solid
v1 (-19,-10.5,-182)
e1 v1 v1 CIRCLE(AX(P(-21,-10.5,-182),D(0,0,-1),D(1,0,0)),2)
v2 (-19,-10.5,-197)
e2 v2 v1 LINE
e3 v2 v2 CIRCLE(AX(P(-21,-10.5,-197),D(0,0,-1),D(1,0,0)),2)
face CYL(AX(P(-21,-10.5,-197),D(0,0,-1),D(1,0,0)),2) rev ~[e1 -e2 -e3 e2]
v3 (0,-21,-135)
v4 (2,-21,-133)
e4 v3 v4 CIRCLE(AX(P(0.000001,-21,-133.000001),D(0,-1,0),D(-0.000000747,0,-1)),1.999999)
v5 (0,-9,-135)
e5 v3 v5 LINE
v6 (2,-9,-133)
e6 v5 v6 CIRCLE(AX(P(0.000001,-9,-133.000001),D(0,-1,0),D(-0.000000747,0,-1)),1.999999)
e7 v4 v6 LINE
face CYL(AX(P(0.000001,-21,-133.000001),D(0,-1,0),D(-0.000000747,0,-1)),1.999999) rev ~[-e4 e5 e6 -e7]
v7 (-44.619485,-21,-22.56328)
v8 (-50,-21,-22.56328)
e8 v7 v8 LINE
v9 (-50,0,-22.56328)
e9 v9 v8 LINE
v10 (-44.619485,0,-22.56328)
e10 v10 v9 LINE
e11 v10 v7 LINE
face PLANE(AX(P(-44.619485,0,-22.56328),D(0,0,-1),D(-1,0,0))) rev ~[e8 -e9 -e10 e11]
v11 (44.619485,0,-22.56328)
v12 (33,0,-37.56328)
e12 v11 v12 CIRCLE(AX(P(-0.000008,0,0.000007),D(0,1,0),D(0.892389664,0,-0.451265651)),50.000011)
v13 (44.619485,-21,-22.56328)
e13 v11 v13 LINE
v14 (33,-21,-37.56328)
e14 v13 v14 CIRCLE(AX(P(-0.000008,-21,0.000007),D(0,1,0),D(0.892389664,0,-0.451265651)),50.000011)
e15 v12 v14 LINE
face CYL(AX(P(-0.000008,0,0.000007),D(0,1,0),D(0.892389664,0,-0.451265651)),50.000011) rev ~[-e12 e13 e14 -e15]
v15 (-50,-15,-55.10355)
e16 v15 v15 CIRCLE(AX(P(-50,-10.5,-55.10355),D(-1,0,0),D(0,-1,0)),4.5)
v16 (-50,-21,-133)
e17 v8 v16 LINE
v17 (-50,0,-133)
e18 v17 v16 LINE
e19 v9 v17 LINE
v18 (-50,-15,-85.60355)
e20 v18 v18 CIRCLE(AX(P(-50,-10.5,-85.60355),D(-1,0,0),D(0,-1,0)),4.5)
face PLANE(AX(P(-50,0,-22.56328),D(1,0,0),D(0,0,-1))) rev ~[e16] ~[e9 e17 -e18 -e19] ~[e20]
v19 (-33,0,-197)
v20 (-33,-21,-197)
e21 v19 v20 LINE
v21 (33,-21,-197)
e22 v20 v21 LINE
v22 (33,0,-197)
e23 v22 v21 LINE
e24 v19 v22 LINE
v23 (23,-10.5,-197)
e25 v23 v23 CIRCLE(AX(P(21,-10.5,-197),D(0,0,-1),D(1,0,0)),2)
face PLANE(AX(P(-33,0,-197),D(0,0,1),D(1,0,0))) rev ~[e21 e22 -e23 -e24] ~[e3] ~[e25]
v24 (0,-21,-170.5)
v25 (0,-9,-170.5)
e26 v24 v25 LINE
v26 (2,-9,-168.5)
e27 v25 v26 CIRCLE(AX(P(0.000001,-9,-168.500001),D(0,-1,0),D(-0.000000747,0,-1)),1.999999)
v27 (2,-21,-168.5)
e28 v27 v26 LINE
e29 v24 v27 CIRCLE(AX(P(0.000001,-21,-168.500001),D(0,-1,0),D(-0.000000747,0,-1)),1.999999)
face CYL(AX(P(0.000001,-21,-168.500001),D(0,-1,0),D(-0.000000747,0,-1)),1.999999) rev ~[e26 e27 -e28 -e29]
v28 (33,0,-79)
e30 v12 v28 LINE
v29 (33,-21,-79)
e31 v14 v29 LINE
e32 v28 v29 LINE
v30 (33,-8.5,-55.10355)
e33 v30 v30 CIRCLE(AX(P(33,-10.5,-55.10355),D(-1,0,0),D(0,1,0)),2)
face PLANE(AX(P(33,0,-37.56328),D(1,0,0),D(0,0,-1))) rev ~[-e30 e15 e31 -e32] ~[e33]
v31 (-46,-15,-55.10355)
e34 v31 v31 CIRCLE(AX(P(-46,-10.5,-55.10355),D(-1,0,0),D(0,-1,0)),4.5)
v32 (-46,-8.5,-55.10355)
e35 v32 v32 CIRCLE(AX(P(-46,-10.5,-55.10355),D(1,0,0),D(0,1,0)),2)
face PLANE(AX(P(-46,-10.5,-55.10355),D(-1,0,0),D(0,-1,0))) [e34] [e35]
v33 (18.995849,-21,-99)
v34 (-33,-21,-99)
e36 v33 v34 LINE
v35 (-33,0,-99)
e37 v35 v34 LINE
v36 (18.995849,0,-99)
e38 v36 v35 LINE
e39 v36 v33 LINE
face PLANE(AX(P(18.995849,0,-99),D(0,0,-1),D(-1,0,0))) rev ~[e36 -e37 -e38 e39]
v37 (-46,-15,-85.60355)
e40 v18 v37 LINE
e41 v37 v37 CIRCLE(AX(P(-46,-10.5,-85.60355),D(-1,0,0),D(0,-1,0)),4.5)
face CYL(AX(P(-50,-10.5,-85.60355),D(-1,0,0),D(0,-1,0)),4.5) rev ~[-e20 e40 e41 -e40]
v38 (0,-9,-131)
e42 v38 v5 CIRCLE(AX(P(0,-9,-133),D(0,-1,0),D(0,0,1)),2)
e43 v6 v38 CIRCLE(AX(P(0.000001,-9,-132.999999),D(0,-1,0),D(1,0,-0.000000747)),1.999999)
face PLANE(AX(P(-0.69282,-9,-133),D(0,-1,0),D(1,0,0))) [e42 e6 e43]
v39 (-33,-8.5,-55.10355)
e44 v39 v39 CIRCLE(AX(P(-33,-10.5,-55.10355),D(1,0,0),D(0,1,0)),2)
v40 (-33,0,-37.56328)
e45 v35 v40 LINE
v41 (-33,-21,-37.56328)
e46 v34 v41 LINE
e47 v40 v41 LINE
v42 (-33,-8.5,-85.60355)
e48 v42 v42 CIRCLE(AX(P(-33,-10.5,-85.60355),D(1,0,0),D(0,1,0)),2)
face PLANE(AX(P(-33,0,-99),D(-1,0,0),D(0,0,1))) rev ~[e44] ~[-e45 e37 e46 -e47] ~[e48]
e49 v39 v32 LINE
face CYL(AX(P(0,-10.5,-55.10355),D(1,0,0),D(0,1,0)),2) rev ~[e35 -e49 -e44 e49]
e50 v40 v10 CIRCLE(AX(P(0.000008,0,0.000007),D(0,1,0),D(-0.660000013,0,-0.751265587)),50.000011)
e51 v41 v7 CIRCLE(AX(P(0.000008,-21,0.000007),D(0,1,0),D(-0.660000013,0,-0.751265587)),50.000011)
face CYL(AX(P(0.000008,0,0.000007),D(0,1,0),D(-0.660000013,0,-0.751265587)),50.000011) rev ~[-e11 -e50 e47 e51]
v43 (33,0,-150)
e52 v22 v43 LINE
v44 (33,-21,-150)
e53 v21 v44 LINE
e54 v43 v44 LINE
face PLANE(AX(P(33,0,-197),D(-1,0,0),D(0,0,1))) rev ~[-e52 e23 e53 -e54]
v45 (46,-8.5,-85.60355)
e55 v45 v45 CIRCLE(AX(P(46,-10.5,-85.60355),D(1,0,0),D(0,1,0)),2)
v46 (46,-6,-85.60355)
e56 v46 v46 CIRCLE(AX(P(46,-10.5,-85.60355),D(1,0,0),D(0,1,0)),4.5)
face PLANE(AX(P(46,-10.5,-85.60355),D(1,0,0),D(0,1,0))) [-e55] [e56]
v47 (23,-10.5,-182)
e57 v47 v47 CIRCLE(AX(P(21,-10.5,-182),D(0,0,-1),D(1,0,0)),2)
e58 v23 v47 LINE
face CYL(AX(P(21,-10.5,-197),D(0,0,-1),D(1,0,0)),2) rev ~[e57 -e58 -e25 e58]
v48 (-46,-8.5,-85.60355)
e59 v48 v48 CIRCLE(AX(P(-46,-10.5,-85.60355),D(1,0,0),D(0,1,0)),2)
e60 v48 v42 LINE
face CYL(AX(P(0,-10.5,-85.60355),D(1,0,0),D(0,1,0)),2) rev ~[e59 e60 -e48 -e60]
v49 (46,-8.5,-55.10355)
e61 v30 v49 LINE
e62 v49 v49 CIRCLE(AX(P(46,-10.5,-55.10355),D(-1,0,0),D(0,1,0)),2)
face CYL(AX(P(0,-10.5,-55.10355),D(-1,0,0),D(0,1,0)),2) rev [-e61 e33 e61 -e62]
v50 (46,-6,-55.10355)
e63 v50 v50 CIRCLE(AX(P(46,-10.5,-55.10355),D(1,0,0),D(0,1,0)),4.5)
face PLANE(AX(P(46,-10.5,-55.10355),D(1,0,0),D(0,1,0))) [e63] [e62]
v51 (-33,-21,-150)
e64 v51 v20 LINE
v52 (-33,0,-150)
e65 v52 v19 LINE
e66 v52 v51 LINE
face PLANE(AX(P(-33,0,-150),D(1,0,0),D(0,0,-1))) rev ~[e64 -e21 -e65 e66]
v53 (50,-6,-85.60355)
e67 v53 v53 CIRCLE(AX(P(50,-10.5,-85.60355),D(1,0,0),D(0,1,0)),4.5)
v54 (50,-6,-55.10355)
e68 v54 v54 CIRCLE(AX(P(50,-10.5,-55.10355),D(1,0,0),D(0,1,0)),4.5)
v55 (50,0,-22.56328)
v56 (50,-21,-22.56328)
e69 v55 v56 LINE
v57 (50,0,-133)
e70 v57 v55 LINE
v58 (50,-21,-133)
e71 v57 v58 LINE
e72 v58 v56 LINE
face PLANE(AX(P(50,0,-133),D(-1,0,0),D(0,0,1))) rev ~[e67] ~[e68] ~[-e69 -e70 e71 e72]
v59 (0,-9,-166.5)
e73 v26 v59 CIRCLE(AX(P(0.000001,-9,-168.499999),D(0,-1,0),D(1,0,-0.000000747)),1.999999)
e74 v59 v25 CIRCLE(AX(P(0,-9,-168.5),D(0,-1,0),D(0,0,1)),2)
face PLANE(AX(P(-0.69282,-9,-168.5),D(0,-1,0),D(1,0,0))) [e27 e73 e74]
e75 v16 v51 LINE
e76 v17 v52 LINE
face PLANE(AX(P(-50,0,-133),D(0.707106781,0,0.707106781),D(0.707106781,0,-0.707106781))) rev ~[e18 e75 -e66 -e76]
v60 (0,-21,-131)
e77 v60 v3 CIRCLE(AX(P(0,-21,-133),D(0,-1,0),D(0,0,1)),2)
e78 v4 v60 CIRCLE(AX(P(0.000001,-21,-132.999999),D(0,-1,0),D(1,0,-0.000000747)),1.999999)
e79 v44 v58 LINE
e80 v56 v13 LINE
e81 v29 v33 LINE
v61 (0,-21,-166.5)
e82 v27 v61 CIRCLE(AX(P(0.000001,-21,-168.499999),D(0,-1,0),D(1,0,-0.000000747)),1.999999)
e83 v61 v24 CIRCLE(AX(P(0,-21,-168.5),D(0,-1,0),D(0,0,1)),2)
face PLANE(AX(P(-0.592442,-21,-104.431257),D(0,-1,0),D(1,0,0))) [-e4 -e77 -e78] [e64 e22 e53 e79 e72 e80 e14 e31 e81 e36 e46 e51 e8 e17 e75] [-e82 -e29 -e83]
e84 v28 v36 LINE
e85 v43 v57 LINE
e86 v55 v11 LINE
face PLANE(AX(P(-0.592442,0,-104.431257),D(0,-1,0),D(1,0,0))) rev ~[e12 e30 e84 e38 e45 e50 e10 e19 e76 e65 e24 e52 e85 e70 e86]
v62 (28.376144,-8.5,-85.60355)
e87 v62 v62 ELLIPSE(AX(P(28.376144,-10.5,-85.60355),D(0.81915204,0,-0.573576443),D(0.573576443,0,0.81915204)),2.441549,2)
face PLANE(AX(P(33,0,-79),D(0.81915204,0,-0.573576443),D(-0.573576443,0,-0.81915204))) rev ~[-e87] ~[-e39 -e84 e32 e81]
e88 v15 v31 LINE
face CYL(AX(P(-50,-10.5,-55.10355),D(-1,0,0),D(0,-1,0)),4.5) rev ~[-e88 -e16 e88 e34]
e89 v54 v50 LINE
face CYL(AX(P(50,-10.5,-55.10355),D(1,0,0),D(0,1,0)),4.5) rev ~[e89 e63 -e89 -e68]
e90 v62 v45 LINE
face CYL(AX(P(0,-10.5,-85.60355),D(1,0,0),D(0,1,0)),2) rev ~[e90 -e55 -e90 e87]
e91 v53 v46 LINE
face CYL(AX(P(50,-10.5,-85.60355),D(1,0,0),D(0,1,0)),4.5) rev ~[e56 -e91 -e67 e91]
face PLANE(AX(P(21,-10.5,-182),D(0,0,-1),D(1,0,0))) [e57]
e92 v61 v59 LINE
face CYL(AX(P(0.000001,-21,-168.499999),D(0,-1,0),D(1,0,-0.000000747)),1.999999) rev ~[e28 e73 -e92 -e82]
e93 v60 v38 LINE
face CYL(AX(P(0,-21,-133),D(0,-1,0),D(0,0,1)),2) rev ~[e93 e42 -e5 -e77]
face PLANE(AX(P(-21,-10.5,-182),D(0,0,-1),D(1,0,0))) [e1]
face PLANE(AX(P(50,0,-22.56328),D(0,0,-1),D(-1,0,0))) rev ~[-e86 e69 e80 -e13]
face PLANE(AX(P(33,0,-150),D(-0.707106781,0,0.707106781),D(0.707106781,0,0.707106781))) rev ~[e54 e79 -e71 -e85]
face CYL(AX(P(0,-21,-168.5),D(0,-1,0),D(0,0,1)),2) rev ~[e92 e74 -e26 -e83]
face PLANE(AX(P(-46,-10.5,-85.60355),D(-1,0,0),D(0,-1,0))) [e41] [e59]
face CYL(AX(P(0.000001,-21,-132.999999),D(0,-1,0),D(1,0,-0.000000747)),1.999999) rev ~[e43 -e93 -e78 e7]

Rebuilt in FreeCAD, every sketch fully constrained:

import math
import FreeCAD as App
import Part
import Sketcher

V = App.Vector
Q = App.Units.Quantity

doc = App.newDocument("Part")
body = doc.addObject("PartDesign::Body", "Body")

# Sketch on XZ plane
sketch1 = body.newObject("Sketcher::SketchObject", "Sketch")
sketch1.AttachmentSupport = (doc.getObject("XZ_Plane"), [""])
sketch1.MapMode = "FlatFace"
sketch1.addGeometry([
    Part.ArcOfCircle(Part.Circle(V(-0.000008, 0.000007, 0), V(0, 0, 1), 50.000011), math.radians(-48.700126), math.radians(-26.824916)),  # 0
    Part.LineSegment(V(33, -37.56328, 0), V(33, -79, 0)),  # 1
    Part.LineSegment(V(33, -79, 0), V(18.995849, -99, 0)),  # 2
    Part.LineSegment(V(18.995849, -99, 0), V(-33, -99, 0)),  # 3
    Part.LineSegment(V(-33, -99, 0), V(-33, -37.56328, 0)),  # 4
    Part.ArcOfCircle(Part.Circle(V(0.000008, 0.000007, 0), V(0, 0, 1), 50.000011), math.radians(-153.175084), math.radians(-131.299874)),  # 5
    Part.LineSegment(V(-44.619485, -22.56328, 0), V(-50, -22.56328, 0)),  # 6
    Part.LineSegment(V(-50, -22.56328, 0), V(-50, -133, 0)),  # 7
    Part.LineSegment(V(-50, -133, 0), V(-33, -150, 0)),  # 8
    Part.LineSegment(V(-33, -150, 0), V(-33, -197, 0)),  # 9
    Part.LineSegment(V(-33, -197, 0), V(33, -197, 0)),  # 10
    Part.LineSegment(V(33, -197, 0), V(33, -150, 0)),  # 11
    Part.LineSegment(V(33, -150, 0), V(50, -133, 0)),  # 12
    Part.LineSegment(V(50, -133, 0), V(50, -22.56328, 0)),  # 13
    Part.LineSegment(V(50, -22.56328, 0), V(44.619485, -22.56328, 0)),  # 14
], False)
sketch1.addConstraint([
    Sketcher.Constraint("Coincident", 0, 1, 1, 1),
    Sketcher.Constraint("Coincident", 1, 2, 2, 1),
    Sketcher.Constraint("Coincident", 2, 2, 3, 1),
    Sketcher.Constraint("Coincident", 3, 2, 4, 1),
    Sketcher.Constraint("Coincident", 4, 2, 5, 2),
    Sketcher.Constraint("Coincident", 5, 1, 6, 1),
    Sketcher.Constraint("Coincident", 6, 2, 7, 1),
    Sketcher.Constraint("Coincident", 7, 2, 8, 1),
    Sketcher.Constraint("Coincident", 8, 2, 9, 1),
    Sketcher.Constraint("Coincident", 9, 2, 10, 1),
    Sketcher.Constraint("Coincident", 10, 2, 11, 1),
    Sketcher.Constraint("Coincident", 11, 2, 12, 1),
    Sketcher.Constraint("Coincident", 12, 2, 13, 1),
    Sketcher.Constraint("Coincident", 13, 2, 14, 1),
    Sketcher.Constraint("Coincident", 14, 2, 0, 2),
    Sketcher.Constraint("Vertical", 1),
    Sketcher.Constraint("Horizontal", 3),
    Sketcher.Constraint("Vertical", 4),
    Sketcher.Constraint("Horizontal", 6),
    Sketcher.Constraint("Vertical", 7),
    Sketcher.Constraint("Vertical", 9),
    Sketcher.Constraint("Horizontal", 10),
    Sketcher.Constraint("Vertical", 11),
    Sketcher.Constraint("Vertical", 13),
    Sketcher.Constraint("Horizontal", 14),
    Sketcher.Constraint("Equal", 0, 5),
    Sketcher.Constraint("Symmetric", 0, 3, 5, 3, -2),
    Sketcher.Constraint("Symmetric", 8, 2, 11, 2, -2),
    Sketcher.Constraint("Symmetric", 7, 2, 12, 2, -2),
    Sketcher.Constraint("Perpendicular", 8, 12),
    Sketcher.Constraint("Horizontal", 0, 1, 4, 2),
    Sketcher.Constraint("Horizontal", 6, 2, 13, 2),
    Sketcher.Constraint("Vertical", 4, 2, 8, 2),
    Sketcher.Constraint("DistanceX", 10, 1, 10, 2, 66.0),
    Sketcher.Constraint("DistanceY", 9, 2, 9, 1, 47.0),
    Sketcher.Constraint("Angle", 2, Q("-125 deg")),
    Sketcher.Constraint("DistanceY", 1, 2, -1, 1, 79.0),
    Sketcher.Constraint("DistanceY", 2, 2, -1, 1, 99.0),
    Sketcher.Constraint("DistanceX", 6, 2, -1, 1, 50.0),
    Sketcher.Constraint("DistanceY", 7, 2, -1, 1, 133.0),
    Sketcher.Constraint("DistanceY", 4, 2, 5, 1, 15.0),
    Sketcher.Constraint("Radius", 0, 50.000011),
    Sketcher.Constraint("DistanceY", 1, 2, 1, 1, 41.43672),
    Sketcher.Constraint("DistanceX", 6, 2, 6, 1, 5.380515),
])
pad1 = body.newObject("PartDesign::Pad", "Pad")
pad1.Profile = sketch1
pad1.Length = 21

# Sketch on YZ plane
sketch2 = body.newObject("Sketcher::SketchObject", "Sketch001")
sketch2.AttachmentSupport = (doc.getObject("YZ_Plane"), [""])
sketch2.MapMode = "FlatFace"
sketch2.addGeometry([
    Part.Circle(V(-10.5, -55.1, 0), V(0, 0, 1), 2),
    Part.Circle(V(-10.5, -85.6, 0), V(0, 0, 1), 2),
], False)
sketch2.addConstraint([
    Sketcher.Constraint("Equal", 0, 1),
    Sketcher.Constraint("Vertical", 0, 3, 1, 3),
    Sketcher.Constraint("Diameter", 0, 4.0),
    Sketcher.Constraint("DistanceX", 0, 3, -1, 1, 10.5),
    Sketcher.Constraint("DistanceY", 1, 3, 0, 3, 30.5),
    Sketcher.Constraint("DistanceY", 0, 3, -1, 1, 55.10355),
])
pocket1 = body.newObject("PartDesign::Pocket", "Pocket")
pocket1.Profile = sketch2
pocket1.Length = 100
pocket1.Midplane = True

# Sketch on YZ plane
sketch3 = body.newObject("Sketcher::SketchObject", "Sketch002")
sketch3.AttachmentSupport = (doc.getObject("YZ_Plane"), [""])
sketch3.MapMode = "FlatFace"
sketch3.AttachmentOffset = App.Placement(V(0, 0, -50), App.Rotation())
sketch3.addGeometry([
    Part.Circle(V(-10.5, -55.1, 0), V(0, 0, 1), 4.5),
    Part.Circle(V(-10.5, -85.6, 0), V(0, 0, 1), 4.5),
], False)
sketch3.addConstraint([
    Sketcher.Constraint("Equal", 0, 1),
    Sketcher.Constraint("Vertical", 0, 3, 1, 3),
    Sketcher.Constraint("Diameter", 0, 9.0),
    Sketcher.Constraint("DistanceX", 0, 3, -1, 1, 10.5),
    Sketcher.Constraint("DistanceY", 1, 3, 0, 3, 30.5),
    Sketcher.Constraint("DistanceY", 0, 3, -1, 1, 55.10355),
])
pocket2 = body.newObject("PartDesign::Pocket", "Pocket001")
pocket2.Profile = sketch3
pocket2.Length = 4
pocket2.Reversed = True

# Sketch on YZ plane
sketch4 = body.newObject("Sketcher::SketchObject", "Sketch003")
sketch4.AttachmentSupport = (doc.getObject("YZ_Plane"), [""])
sketch4.MapMode = "FlatFace"
sketch4.AttachmentOffset = App.Placement(V(0, 0, 50), App.Rotation())
sketch4.addGeometry([
    Part.Circle(V(-10.5, -55.1, 0), V(0, 0, 1), 4.5),
    Part.Circle(V(-10.5, -85.6, 0), V(0, 0, 1), 4.5),
], False)
sketch4.addConstraint([
    Sketcher.Constraint("Equal", 0, 1),
    Sketcher.Constraint("Vertical", 0, 3, 1, 3),
    Sketcher.Constraint("Diameter", 0, 9.0),
    Sketcher.Constraint("DistanceX", 0, 3, -1, 1, 10.5),
    Sketcher.Constraint("DistanceY", 1, 3, 0, 3, 30.5),
    Sketcher.Constraint("DistanceY", 0, 3, -1, 1, 55.10355),
])
pocket3 = body.newObject("PartDesign::Pocket", "Pocket002")
pocket3.Profile = sketch4
pocket3.Length = 4

# Sketch on XY plane
sketch5 = body.newObject("Sketcher::SketchObject", "Sketch004")
sketch5.AttachmentSupport = (doc.getObject("XY_Plane"), [""])
sketch5.MapMode = "FlatFace"
sketch5.AttachmentOffset = App.Placement(V(0, 0, -197), App.Rotation())
sketch5.addGeometry([
    Part.Circle(V(-21, -10.5, 0), V(0, 0, 1), 2),
    Part.Circle(V(21, -10.5, 0), V(0, 0, 1), 2),
], False)
sketch5.addConstraint([
    Sketcher.Constraint("Equal", 0, 1),
    Sketcher.Constraint("Symmetric", 0, 3, 1, 3, -2),
    Sketcher.Constraint("Diameter", 0, 4.0),
    Sketcher.Constraint("DistanceX", 0, 3, -1, 1, 21.0),
    Sketcher.Constraint("DistanceY", 0, 3, -1, 1, 10.5),
])
pocket4 = body.newObject("PartDesign::Pocket", "Pocket003")
pocket4.Profile = sketch5
pocket4.Length = 15
pocket4.Reversed = True

# Sketch on XZ plane
sketch6 = body.newObject("Sketcher::SketchObject", "Sketch005")
sketch6.AttachmentSupport = (doc.getObject("XZ_Plane"), [""])
sketch6.MapMode = "FlatFace"
sketch6.AttachmentOffset = App.Placement(V(0, 0, 21), App.Rotation())
sketch6.addGeometry([
    Part.ArcOfCircle(Part.Circle(V(0, -168.5, 0), V(0, 0, 1), 2), math.radians(90), math.radians(270)),  # 0
    Part.ArcOfCircle(Part.Circle(V(0, -168.5, 0), V(0, 0, 1), 2), math.radians(-90), math.radians(0)),  # 1
    Part.ArcOfCircle(Part.Circle(V(0, -168.5, 0), V(0, 0, 1), 2), math.radians(0), math.radians(90)),  # 2
    Part.ArcOfCircle(Part.Circle(V(0, -133, 0), V(0, 0, 1), 2), math.radians(90), math.radians(270)),  # 3
    Part.ArcOfCircle(Part.Circle(V(0, -133, 0), V(0, 0, 1), 2), math.radians(-90), math.radians(0)),  # 4
    Part.ArcOfCircle(Part.Circle(V(0, -133, 0), V(0, 0, 1), 2), math.radians(0), math.radians(90)),  # 5
], False)
sketch6.addConstraint([
    Sketcher.Constraint("Tangent", 0, 2, 1, 1),
    Sketcher.Constraint("Tangent", 1, 2, 2, 1),
    Sketcher.Constraint("Tangent", 2, 2, 0, 1),
    Sketcher.Constraint("Tangent", 3, 2, 4, 1),
    Sketcher.Constraint("Tangent", 4, 2, 5, 1),
    Sketcher.Constraint("Tangent", 5, 2, 3, 1),
    Sketcher.Constraint("Equal", 2, 3),
    Sketcher.Constraint("PointOnObject", 0, 3, -2),
    Sketcher.Constraint("PointOnObject", 3, 3, -2),
    Sketcher.Constraint("PointOnObject", 0, 2, -2),
    Sketcher.Constraint("PointOnObject", 2, 2, -2),
    Sketcher.Constraint("PointOnObject", 3, 2, -2),
    Sketcher.Constraint("PointOnObject", 5, 2, -2),
    Sketcher.Constraint("Horizontal", 2, 3, 1, 2),
    Sketcher.Constraint("Horizontal", 5, 3, 4, 2),
    Sketcher.Constraint("Radius", 0, 2.0),
    Sketcher.Constraint("DistanceY", 3, 3, -1, 1, 133.0),
    Sketcher.Constraint("DistanceY", 0, 3, -1, 1, 168.5),
])
pocket5 = body.newObject("PartDesign::Pocket", "Pocket004")
pocket5.Profile = sketch6
pocket5.Length = 12

doc.recompute()
